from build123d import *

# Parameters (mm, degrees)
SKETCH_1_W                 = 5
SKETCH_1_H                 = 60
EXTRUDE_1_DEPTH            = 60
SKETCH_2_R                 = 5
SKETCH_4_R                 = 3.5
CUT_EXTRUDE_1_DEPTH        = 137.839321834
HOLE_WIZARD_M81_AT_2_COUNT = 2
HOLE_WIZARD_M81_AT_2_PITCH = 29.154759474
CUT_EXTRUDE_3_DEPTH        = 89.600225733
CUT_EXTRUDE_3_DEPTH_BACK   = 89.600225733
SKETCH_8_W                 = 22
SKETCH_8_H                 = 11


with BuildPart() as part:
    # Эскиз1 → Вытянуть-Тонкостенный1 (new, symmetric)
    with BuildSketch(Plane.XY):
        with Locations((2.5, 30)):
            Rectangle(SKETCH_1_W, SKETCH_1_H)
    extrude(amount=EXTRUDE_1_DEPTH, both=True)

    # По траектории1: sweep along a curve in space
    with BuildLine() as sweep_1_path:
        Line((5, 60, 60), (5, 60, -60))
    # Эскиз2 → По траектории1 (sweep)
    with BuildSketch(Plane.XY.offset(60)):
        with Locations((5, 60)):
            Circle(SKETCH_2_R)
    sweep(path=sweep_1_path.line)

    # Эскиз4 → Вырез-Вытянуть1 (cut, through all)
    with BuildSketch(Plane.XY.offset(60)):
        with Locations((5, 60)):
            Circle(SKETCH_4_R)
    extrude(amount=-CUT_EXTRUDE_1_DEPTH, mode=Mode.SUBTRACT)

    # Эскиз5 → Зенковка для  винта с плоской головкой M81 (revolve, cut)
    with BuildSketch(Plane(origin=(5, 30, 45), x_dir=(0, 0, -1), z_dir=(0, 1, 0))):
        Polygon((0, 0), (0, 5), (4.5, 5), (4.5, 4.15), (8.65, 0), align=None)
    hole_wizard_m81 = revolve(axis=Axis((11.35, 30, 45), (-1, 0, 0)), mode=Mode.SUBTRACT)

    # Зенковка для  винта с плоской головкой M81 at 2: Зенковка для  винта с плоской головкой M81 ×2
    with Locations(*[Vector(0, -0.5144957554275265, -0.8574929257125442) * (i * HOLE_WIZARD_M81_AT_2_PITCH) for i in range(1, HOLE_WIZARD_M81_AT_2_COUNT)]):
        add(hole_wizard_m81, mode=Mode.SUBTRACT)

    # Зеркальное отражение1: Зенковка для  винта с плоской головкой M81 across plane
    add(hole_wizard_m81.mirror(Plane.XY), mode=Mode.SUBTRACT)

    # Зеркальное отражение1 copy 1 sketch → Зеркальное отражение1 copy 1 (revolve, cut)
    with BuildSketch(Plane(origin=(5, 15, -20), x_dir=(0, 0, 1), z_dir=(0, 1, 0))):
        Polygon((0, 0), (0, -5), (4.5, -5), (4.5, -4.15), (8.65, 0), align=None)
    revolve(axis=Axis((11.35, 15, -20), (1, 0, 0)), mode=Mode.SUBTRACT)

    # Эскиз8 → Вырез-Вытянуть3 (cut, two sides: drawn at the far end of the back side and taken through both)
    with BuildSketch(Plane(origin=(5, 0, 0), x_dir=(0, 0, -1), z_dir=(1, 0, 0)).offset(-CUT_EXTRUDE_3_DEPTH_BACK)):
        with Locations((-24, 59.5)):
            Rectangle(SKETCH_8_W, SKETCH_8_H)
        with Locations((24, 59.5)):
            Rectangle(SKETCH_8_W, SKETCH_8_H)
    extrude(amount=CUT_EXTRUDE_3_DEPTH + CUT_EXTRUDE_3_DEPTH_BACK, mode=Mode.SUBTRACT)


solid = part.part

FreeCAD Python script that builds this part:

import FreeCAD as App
import Part
import Sketcher
from FreeCAD import Vector
Q = App.Units.Quantity

doc = App.newDocument("Part")
body = doc.addObject("PartDesign::Body", "Body")

sketch1 = body.newObject("Sketcher::SketchObject", "Sketch")
sketch1.AttachmentSupport = (doc.getObject("XY_Plane"), [""])
sketch1.MapMode = "FlatFace"
sketch1.addGeometry(Part.LineSegment(Vector(0, 60, 0), Vector(0, 0, 0)), False)
sketch1.addGeometry(Part.LineSegment(Vector(0, 0, 0), Vector(5, 0, 0)), False)
sketch1.addGeometry(Part.LineSegment(Vector(5, 0, 0), Vector(5, 60, 0)), False)
sketch1.addGeometry(Part.LineSegment(Vector(5, 60, 0), Vector(0, 60, 0)), False)
sketch1.addConstraint(Sketcher.Constraint("Coincident", 0, 2, 1, 1))
sketch1.addConstraint(Sketcher.Constraint("Coincident", 1, 2, 2, 1))
sketch1.addConstraint(Sketcher.Constraint("Coincident", 2, 2, 3, 1))
sketch1.addConstraint(Sketcher.Constraint("Coincident", 3, 2, 0, 1))
sketch1.addConstraint(Sketcher.Constraint("Vertical", 0))
sketch1.addConstraint(Sketcher.Constraint("Horizontal", 1))
sketch1.addConstraint(Sketcher.Constraint("Vertical", 2))
sketch1.addConstraint(Sketcher.Constraint("Horizontal", 3))
sketch1.addConstraint(Sketcher.Constraint("Coincident", 0, 2, -1, 1))
sketch1.addConstraint(Sketcher.Constraint("DistanceX", 1, 1, 1, 2, Q("5 mm")))
sketch1.addConstraint(Sketcher.Constraint("DistanceY", 0, 2, 0, 1, Q("60 mm")))
pad1 = body.newObject("PartDesign::Pad", "Pad")
pad1.Profile = sketch1
pad1.Length = 120
pad1.Midplane = True

sketch2 = body.newObject("Sketcher::SketchObject", "Sketch001")
sketch2.AttachmentSupport = (doc.getObject("XY_Plane"), [""])
sketch2.MapMode = "FlatFace"
sketch2.AttachmentOffset = App.Placement(Vector(0, 0, 60), App.Rotation())
sketch2.addGeometry(Part.Circle(Vector(5, 60, 0), Vector(0, 0, 1), 5), False)
sketch2.addConstraint(Sketcher.Constraint("Diameter", 0, Q("10 mm")))
sketch2.addConstraint(Sketcher.Constraint("DistanceX", -1, 1, 0, 3, Q("5 mm")))
sketch2.addConstraint(Sketcher.Constraint("DistanceY", -1, 1, 0, 3, Q("60 mm")))

sketch3 = body.newObject("Sketcher::SketchObject", "Sketch002")
sketch3.AttachmentSupport = (doc.getObject("XZ_Plane"), [""])
sketch3.MapMode = "FlatFace"
sketch3.AttachmentOffset = App.Placement(Vector(0, 0, -60), App.Rotation())
sketch3.addGeometry(Part.LineSegment(Vector(5, 60, 0), Vector(5, -60, 0)), False)
sketch3.addConstraint(Sketcher.Constraint("Vertical", 0))
sketch3.addConstraint(Sketcher.Constraint("DistanceY", 0, 2, 0, 1, Q("120 mm")))
sketch3.addConstraint(Sketcher.Constraint("DistanceX", -1, 1, 0, 1, Q("5 mm")))
sketch3.addConstraint(Sketcher.Constraint("DistanceY", -1, 1, 0, 1, Q("60 mm")))
doc.recompute()

additivepipe = body.newObject("PartDesign::AdditivePipe", "AdditivePipe")
additivepipe.Profile = sketch2
additivepipe.Spine = (sketch3, ["Edge1"])

sketch4 = body.newObject("Sketcher::SketchObject", "Sketch003")
sketch4.AttachmentSupport = (doc.getObject("XY_Plane"), [""])
sketch4.MapMode = "FlatFace"
sketch4.AttachmentOffset = App.Placement(Vector(0, 0, 60), App.Rotation())
sketch4.addGeometry(Part.Circle(Vector(5, 60, 0), Vector(0, 0, 1), 3.5), False)
sketch4.addConstraint(Sketcher.Constraint("Diameter", 0, Q("7 mm")))
sketch4.addConstraint(Sketcher.Constraint("DistanceX", -1, 1, 0, 3, Q("5 mm")))
sketch4.addConstraint(Sketcher.Constraint("DistanceY", -1, 1, 0, 3, Q("60 mm")))
pocket1 = body.newObject("PartDesign::Pocket", "Pocket")
pocket1.Profile = sketch4
pocket1.Type = "ThroughAll"

sketch5 = body.newObject("Sketcher::SketchObject", "Sketch004")
sketch5.AttachmentSupport = (doc.getObject("XZ_Plane"), [""])
sketch5.MapMode = "FlatFace"
sketch5.AttachmentOffset = App.Placement(Vector(0, 0, -30), App.Rotation())
sketch5.addGeometry(Part.LineSegment(Vector(0, 45, 0), Vector(5, 45, 0)), False)
sketch5.addGeometry(Part.LineSegment(Vector(5, 45, 0), Vector(5, 36.4, 0)), False)
sketch5.addGeometry(Part.LineSegment(Vector(5, 36.4, 0), Vector(0.8, 40.5, 0)), False)
sketch5.addGeometry(Part.LineSegment(Vector(0.8, 40.5, 0), Vector(0, 40.5, 0)), False)
sketch5.addGeometry(Part.LineSegment(Vector(0, 40.5, 0), Vector(0, 45, 0)), False)
sketch5.addGeometry(Part.LineSegment(Vector(5, 45, 0), Vector(0, 45, 0)), True)
sketch5.addConstraint(Sketcher.Constraint("Coincident", 0, 2, 1, 1))
sketch5.addConstraint(Sketcher.Constraint("Coincident", 1, 2, 2, 1))
sketch5.addConstraint(Sketcher.Constraint("Coincident", 2, 2, 3, 1))
sketch5.addConstraint(Sketcher.Constraint("Coincident", 3, 2, 4, 1))
sketch5.addConstraint(Sketcher.Constraint("Coincident", 4, 2, 0, 1))
sketch5.addConstraint(Sketcher.Constraint("Horizontal", 0))
sketch5.addConstraint(Sketcher.Constraint("Vertical", 1))
sketch5.addConstraint(Sketcher.Constraint("Horizontal", 3))
sketch5.addConstraint(Sketcher.Constraint("Vertical", 4))
sketch5.addConstraint(Sketcher.Constraint("Horizontal", 5))
sketch5.addConstraint(Sketcher.Constraint("Coincident", 5, 1, 0, 2))
sketch5.addConstraint(Sketcher.Constraint("PointOnObject", 3, 2, -2))
sketch5.addConstraint(Sketcher.Constraint("PointOnObject", 5, 2, -2))
sketch5.addConstraint(Sketcher.Constraint("DistanceX", 0, 1, 0, 2, Q("5 mm")))
sketch5.addConstraint(Sketcher.Constraint("Angle", 2, Q("135 deg")))
sketch5.addConstraint(Sketcher.Constraint("DistanceY", 4, 1, 4, 2, Q("4.5 mm")))
sketch5.addConstraint(Sketcher.Constraint("DistanceY", -1, 1, 0, 2, Q("45 mm")))
sketch5.addConstraint(Sketcher.Constraint("DistanceX", 3, 2, 3, 1, Q("0.85 mm")))
groove = body.newObject("PartDesign::Groove", "Groove")
groove.Profile = sketch5
groove.ReferenceAxis = (sketch5, ["Axis0"])
groove.Angle = 360
doc.recompute()

datumline = body.newObject("PartDesign::Line", "DatumLine")
datumline.Placement = App.Placement(Vector(0, 0, 0), App.Rotation(Vector(0, 0, 1), Vector(0, -0.514495755, -0.857492926)))
linearpattern = body.newObject("PartDesign::LinearPattern", "LinearPattern")
linearpattern.Originals = [groove]
linearpattern.Direction = (datumline, [""])
linearpattern.Mode = "offset"
linearpattern.Offset = 29.154759
linearpattern.Occurrences = 2
body.Tip = linearpattern
doc.recompute()

mirrored = body.newObject("PartDesign::Mirrored", "Mirrored")
mirrored.Originals = [groove]
mirrored.MirrorPlane = (doc.getObject("XY_Plane"), [""])
body.Tip = mirrored

sketch6 = body.newObject("Sketcher::SketchObject", "Sketch005")
sketch6.AttachmentSupport = (doc.getObject("XZ_Plane"), [""])
sketch6.MapMode = "FlatFace"
sketch6.AttachmentOffset = App.Placement(Vector(0, 0, -15), App.Rotation())
sketch6.addGeometry(Part.LineSegment(Vector(5, -20, 0), Vector(0, -20, 0)), False)
sketch6.addGeometry(Part.LineSegment(Vector(0, -20, 0), Vector(0, -15.5, 0)), False)
sketch6.addGeometry(Part.LineSegment(Vector(0, -15.5, 0), Vector(0.8, -15.5, 0)), False)
sketch6.addGeometry(Part.LineSegment(Vector(0.8, -15.5, 0), Vector(5, -11.3, 0)), False)
sketch6.addGeometry(Part.LineSegment(Vector(5, -11.3, 0), Vector(5, -20, 0)), False)
sketch6.addGeometry(Part.LineSegment(Vector(0, -20, 0), Vector(5, -20, 0)), True)
sketch6.addConstraint(Sketcher.Constraint("Coincident", 0, 2, 1, 1))
sketch6.addConstraint(Sketcher.Constraint("Coincident", 1, 2, 2, 1))
sketch6.addConstraint(Sketcher.Constraint("Coincident", 2, 2, 3, 1))
sketch6.addConstraint(Sketcher.Constraint("Coincident", 3, 2, 4, 1))
sketch6.addConstraint(Sketcher.Constraint("Coincident", 4, 2, 0, 1))
sketch6.addConstraint(Sketcher.Constraint("Horizontal", 0))
sketch6.addConstraint(Sketcher.Constraint("Vertical", 1))
sketch6.addConstraint(Sketcher.Constraint("Horizontal", 2))
sketch6.addConstraint(Sketcher.Constraint("Vertical", 4))
sketch6.addConstraint(Sketcher.Constraint("Horizontal", 5))
sketch6.addConstraint(Sketcher.Constraint("Coincident", 5, 1, 0, 2))
sketch6.addConstraint(Sketcher.Constraint("PointOnObject", 0, 2, -2))
sketch6.addConstraint(Sketcher.Constraint("Vertical", 3, 2, 5, 2))
sketch6.addConstraint(Sketcher.Constraint("DistanceX", 0, 2, 0, 1, Q("5 mm")))
sketch6.addConstraint(Sketcher.Constraint("Angle", 3, Q("45 deg")))
sketch6.addConstraint(Sketcher.Constraint("DistanceY", 1, 1, 1, 2, Q("4.5 mm")))
sketch6.addConstraint(Sketcher.Constraint("DistanceY", 0, 2, -1, 1, Q("20 mm")))
sketch6.addConstraint(Sketcher.Constraint("DistanceX", 2, 1, 2, 2, Q("0.85 mm")))
groove2 = body.newObject("PartDesign::Groove", "Groove001")
groove2.Profile = sketch6
groove2.ReferenceAxis = (sketch6, ["Axis0"])
groove2.Angle = 360

sketch7 = body.newObject("Sketcher::SketchObject", "Sketch006")
sketch7.AttachmentSupport = (doc.getObject("YZ_Plane"), [""])
sketch7.MapMode = "FlatFace"
sketch7.AttachmentOffset = App.Placement(Vector(0, 0, 5), App.Rotation())
sketch7.addGeometry(Part.LineSegment(Vector(65, 35, 0), Vector(54, 35, 0)), False)
sketch7.addGeometry(Part.LineSegment(Vector(54, 35, 0), Vector(54, 13, 0)), False)
sketch7.addGeometry(Part.LineSegment(Vector(54, 13, 0), Vector(65, 13, 0)), False)
sketch7.addGeometry(Part.LineSegment(Vector(65, 13, 0), Vector(65, 35, 0)), False)
sketch7.addGeometry(Part.LineSegment(Vector(65, -13, 0), Vector(54, -13, 0)), False)
sketch7.addGeometry(Part.LineSegment(Vector(54, -13, 0), Vector(54, -35, 0)), False)
sketch7.addGeometry(Part.LineSegment(Vector(54, -35, 0), Vector(65, -35, 0)), False)
sketch7.addGeometry(Part.LineSegment(Vector(65, -35, 0), Vector(65, -13, 0)), False)
sketch7.addConstraint(Sketcher.Constraint("Coincident", 0, 2, 1, 1))
sketch7.addConstraint(Sketcher.Constraint("Coincident", 1, 2, 2, 1))
sketch7.addConstraint(Sketcher.Constraint("Coincident", 2, 2, 3, 1))
sketch7.addConstraint(Sketcher.Constraint("Coincident", 3, 2, 0, 1))
sketch7.addConstraint(Sketcher.Constraint("Coincident", 4, 2, 5, 1))
sketch7.addConstraint(Sketcher.Constraint("Coincident", 5, 2, 6, 1))
sketch7.addConstraint(Sketcher.Constraint("Coincident", 6, 2, 7, 1))
sketch7.addConstraint(Sketcher.Constraint("Coincident", 7, 2, 4, 1))
sketch7.addConstraint(Sketcher.Constraint("Horizontal", 0))
sketch7.addConstraint(Sketcher.Constraint("Vertical", 1))
sketch7.addConstraint(Sketcher.Constraint("Horizontal", 2))
sketch7.addConstraint(Sketcher.Constraint("Vertical", 3))
sketch7.addConstraint(Sketcher.Constraint("Horizontal", 4))
sketch7.addConstraint(Sketcher.Constraint("Vertical", 5))
sketch7.addConstraint(Sketcher.Constraint("Horizontal", 6))
sketch7.addConstraint(Sketcher.Constraint("Vertical", 7))
sketch7.addConstraint(Sketcher.Constraint("Symmetric", 1, 2, 4, 2, -1))
sketch7.addConstraint(Sketcher.Constraint("Symmetric", 3, 2, 6, 2, -1))
sketch7.addConstraint(Sketcher.Constraint("DistanceX", 0, 2, 0, 1, Q("11 mm")))
sketch7.addConstraint(Sketcher.Constraint("DistanceY", 1, 2, 1, 1, Q("22 mm")))
sketch7.addConstraint(Sketcher.Constraint("DistanceX", -1, 1, 0, 2, Q("54 mm")))
sketch7.addConstraint(Sketcher.Constraint("DistanceY", -1, 1, 0, 2, Q("35 mm")))
pocket2 = body.newObject("PartDesign::Pocket", "Pocket001")
pocket2.Profile = sketch7
pocket2.Type = "ThroughAll"
pocket2.Midplane = True

doc.recompute()
